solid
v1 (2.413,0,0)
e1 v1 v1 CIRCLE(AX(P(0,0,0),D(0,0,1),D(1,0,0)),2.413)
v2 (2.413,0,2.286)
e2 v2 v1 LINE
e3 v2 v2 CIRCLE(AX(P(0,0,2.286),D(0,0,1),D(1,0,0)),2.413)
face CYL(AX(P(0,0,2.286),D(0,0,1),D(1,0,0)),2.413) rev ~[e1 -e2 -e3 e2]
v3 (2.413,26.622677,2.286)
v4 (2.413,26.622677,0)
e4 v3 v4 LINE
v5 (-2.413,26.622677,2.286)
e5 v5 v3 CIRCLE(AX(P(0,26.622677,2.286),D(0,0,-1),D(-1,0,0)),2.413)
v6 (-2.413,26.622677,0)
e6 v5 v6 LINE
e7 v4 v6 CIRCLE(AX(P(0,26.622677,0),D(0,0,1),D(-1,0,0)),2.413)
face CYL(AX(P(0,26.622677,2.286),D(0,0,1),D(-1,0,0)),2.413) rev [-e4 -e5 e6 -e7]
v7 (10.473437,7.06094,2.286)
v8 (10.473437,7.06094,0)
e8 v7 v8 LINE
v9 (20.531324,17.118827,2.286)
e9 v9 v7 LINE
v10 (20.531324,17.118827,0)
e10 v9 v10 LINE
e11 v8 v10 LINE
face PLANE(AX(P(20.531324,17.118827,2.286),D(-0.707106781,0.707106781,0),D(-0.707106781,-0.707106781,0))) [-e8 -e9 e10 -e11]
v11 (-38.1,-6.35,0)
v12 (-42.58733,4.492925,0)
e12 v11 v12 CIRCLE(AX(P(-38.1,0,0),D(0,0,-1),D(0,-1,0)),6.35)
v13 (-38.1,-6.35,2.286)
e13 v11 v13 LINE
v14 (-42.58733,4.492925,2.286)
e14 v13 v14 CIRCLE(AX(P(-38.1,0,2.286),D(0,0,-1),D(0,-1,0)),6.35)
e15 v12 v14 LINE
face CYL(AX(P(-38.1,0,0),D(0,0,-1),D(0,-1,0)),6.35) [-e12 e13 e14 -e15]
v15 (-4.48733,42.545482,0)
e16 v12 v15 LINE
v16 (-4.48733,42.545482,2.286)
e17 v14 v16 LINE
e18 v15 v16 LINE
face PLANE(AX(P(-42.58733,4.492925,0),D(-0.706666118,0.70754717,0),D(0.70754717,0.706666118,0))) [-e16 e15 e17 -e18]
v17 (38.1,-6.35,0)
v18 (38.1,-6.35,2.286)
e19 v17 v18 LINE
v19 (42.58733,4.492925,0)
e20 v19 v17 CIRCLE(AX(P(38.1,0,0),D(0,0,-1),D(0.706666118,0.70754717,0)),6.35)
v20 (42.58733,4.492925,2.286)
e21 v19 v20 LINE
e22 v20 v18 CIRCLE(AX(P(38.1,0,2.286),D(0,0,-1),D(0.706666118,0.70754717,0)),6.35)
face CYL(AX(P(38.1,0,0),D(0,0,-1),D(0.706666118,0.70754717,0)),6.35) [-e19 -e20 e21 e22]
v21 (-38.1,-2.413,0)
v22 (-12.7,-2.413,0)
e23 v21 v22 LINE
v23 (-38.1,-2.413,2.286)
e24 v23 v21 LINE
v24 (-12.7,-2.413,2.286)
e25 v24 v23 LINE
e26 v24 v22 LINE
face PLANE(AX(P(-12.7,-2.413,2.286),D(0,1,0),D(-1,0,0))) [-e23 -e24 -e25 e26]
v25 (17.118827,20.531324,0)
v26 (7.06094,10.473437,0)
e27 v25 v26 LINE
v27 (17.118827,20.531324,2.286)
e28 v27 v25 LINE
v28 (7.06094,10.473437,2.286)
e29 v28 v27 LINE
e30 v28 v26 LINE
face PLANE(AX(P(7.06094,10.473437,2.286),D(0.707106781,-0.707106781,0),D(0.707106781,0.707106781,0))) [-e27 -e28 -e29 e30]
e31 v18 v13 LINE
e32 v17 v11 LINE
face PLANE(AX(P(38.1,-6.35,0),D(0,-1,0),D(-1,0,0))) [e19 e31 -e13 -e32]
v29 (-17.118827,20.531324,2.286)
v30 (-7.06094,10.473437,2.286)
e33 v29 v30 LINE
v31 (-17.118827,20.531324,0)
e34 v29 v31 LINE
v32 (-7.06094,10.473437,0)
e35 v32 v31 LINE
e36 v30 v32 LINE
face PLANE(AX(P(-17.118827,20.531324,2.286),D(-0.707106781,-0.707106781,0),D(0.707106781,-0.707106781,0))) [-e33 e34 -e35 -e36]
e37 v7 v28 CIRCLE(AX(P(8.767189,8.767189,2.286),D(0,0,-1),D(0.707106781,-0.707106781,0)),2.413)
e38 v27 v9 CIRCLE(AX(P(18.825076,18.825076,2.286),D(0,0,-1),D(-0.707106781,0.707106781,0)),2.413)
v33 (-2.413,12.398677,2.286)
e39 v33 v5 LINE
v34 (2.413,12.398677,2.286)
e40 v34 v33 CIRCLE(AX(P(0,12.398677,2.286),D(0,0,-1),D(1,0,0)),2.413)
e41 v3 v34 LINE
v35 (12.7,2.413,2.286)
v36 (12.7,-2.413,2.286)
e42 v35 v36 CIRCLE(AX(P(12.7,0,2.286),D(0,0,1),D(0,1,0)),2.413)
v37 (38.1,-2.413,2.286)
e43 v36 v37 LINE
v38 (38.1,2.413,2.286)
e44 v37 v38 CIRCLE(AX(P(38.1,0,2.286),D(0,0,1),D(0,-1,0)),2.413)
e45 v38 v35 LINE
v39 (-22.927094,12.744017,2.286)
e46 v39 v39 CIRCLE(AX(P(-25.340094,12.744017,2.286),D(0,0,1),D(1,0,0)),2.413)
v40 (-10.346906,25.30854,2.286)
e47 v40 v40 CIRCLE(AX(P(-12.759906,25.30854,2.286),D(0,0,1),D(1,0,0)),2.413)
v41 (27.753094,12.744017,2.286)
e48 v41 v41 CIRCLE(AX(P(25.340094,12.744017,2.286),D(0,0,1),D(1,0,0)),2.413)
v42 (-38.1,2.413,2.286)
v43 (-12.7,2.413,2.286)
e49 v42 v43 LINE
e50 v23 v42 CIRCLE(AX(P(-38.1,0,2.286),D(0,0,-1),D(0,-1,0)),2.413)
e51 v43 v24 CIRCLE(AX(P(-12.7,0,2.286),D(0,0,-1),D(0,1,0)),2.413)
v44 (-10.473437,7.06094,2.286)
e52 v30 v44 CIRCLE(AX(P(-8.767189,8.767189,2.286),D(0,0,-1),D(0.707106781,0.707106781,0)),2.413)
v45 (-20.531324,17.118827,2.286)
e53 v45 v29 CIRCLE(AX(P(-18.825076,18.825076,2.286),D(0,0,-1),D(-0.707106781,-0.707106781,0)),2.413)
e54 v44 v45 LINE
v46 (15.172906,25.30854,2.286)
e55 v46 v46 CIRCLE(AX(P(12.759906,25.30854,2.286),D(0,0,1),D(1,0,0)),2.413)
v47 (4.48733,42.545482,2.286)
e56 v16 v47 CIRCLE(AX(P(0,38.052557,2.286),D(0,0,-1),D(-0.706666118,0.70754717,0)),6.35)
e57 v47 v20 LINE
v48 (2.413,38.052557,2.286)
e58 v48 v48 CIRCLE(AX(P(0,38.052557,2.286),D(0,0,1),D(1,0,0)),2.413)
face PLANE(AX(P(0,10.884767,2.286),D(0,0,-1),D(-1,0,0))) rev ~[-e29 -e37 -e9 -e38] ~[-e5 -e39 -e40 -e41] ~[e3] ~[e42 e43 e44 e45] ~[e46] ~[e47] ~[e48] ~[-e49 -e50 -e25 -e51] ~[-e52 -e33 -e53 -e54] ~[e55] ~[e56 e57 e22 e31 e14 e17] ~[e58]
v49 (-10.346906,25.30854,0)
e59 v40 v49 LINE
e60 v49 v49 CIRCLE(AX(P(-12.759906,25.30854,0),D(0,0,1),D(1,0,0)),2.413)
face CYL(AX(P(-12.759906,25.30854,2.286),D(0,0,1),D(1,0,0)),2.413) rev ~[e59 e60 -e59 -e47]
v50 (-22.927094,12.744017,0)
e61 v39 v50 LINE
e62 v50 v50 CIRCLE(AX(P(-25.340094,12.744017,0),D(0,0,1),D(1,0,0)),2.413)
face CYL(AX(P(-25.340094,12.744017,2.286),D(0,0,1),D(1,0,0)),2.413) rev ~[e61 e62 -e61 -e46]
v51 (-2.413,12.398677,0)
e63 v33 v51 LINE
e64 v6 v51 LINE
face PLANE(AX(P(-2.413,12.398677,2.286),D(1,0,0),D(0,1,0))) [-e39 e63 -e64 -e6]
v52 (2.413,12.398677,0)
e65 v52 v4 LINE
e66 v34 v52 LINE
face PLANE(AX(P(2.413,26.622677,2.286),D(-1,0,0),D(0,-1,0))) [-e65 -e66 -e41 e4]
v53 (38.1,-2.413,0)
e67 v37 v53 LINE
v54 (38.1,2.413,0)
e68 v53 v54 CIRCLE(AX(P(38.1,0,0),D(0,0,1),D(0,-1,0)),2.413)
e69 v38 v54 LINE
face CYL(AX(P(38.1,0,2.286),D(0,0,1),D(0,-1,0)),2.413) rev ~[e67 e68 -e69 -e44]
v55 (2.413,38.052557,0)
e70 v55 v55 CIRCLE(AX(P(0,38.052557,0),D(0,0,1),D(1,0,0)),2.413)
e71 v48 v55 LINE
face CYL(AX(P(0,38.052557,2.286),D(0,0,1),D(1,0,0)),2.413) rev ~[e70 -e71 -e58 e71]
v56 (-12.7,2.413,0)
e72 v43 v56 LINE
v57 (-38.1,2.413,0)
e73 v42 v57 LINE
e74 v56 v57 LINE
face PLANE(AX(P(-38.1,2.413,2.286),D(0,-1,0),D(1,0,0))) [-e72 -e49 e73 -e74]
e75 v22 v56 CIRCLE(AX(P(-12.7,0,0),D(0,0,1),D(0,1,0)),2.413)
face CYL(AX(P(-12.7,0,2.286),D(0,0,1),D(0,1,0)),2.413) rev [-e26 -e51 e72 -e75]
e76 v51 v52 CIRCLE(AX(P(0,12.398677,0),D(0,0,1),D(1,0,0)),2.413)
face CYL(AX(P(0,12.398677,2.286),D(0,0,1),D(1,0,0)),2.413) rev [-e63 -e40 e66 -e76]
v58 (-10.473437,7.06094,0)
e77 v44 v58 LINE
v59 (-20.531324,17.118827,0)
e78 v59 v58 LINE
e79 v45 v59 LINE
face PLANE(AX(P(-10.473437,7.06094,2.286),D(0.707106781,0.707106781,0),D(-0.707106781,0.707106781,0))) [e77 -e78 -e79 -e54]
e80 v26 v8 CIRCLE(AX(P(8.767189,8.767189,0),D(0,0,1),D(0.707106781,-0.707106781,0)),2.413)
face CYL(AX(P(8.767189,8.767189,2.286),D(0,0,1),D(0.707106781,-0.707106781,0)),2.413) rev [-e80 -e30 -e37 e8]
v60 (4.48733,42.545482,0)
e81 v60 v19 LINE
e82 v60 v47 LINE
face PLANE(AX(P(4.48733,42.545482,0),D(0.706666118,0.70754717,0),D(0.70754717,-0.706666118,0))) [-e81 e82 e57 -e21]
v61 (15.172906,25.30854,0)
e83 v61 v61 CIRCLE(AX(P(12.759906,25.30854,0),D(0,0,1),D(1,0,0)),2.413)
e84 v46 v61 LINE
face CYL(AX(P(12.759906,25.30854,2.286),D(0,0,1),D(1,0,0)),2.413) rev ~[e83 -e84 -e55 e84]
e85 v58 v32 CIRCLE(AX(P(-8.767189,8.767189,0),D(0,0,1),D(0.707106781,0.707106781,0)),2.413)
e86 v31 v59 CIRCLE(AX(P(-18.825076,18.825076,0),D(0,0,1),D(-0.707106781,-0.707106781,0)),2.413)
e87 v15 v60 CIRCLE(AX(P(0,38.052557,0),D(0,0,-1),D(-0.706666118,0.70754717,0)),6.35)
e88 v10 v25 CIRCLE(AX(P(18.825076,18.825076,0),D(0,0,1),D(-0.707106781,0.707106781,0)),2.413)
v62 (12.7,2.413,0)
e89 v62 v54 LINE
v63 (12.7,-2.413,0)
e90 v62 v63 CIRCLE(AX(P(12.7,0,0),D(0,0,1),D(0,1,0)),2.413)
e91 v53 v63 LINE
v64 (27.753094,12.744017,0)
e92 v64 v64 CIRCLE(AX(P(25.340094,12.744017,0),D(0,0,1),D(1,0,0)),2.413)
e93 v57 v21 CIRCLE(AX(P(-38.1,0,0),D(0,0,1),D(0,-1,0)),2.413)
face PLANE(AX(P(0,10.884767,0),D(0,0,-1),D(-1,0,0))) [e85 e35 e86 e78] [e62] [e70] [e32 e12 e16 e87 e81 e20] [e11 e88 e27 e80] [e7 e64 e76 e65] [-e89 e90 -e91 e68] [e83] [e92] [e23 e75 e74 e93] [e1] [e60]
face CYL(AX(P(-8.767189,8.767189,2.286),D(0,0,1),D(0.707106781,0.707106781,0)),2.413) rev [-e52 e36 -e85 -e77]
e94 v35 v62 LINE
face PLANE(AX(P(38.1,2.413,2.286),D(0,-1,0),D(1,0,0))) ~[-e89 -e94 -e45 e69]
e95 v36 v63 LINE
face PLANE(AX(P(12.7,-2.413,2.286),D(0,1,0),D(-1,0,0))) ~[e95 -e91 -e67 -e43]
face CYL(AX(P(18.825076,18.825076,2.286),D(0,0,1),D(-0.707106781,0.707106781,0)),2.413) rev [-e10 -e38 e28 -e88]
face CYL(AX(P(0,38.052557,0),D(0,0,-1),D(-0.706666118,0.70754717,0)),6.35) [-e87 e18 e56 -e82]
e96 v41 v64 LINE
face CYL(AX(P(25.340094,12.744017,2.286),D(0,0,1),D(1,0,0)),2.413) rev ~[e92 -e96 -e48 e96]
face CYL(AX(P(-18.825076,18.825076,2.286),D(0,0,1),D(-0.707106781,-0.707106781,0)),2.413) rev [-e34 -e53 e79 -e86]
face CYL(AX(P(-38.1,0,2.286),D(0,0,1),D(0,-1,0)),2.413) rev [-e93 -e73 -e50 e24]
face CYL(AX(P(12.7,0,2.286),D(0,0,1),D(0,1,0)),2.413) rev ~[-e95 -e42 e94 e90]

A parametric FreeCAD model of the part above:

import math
import FreeCAD as App
import Part
import Sketcher
from FreeCAD import Vector
Q = App.Units.Quantity

doc = App.newDocument("Part")
body = doc.addObject("PartDesign::Body", "Body")

# Sketch on XY plane
sketch1 = body.newObject("Sketcher::SketchObject", "Sketch")
sketch1.AttachmentSupport = (doc.getObject("XY_Plane"), [""])
sketch1.MapMode = "FlatFace"
sketch1.addGeometry([
    Part.LineSegment(Vector(-4.48733, 42.545482, 0), Vector(-42.58733, 4.492925, 0)),  # 0
    Part.ArcOfCircle(Part.Circle(Vector(-38.1, 0, 0), Vector(0, 0, 1), 6.35), math.radians(134.964305), math.radians(270)),  # 1
    Part.LineSegment(Vector(-38.1, -6.35, 0), Vector(38.1, -6.35, 0)),  # 2
    Part.ArcOfCircle(Part.Circle(Vector(38.1, 0, 0), Vector(0, 0, 1), 6.35), math.radians(-90), math.radians(45.035695)),  # 3
    Part.LineSegment(Vector(42.58733, 4.492925, 0), Vector(4.48733, 42.545482, 0)),  # 4
    Part.ArcOfCircle(Part.Circle(Vector(0, 38.052557, 0), Vector(0, 0, 1), 6.35), math.radians(45.035695), math.radians(134.964305)),  # 5
], False)
sketch1.addConstraint([
    Sketcher.Constraint("Tangent", 0, 2, 1, 1),
    Sketcher.Constraint("Tangent", 1, 2, 2, 1),
    Sketcher.Constraint("Tangent", 2, 2, 3, 1),
    Sketcher.Constraint("Tangent", 3, 2, 4, 1),
    Sketcher.Constraint("Tangent", 4, 2, 5, 1),
    Sketcher.Constraint("Tangent", 5, 2, 0, 1),
    Sketcher.Constraint("Horizontal", 2),
    Sketcher.Constraint("Equal", 1, 3),
    Sketcher.Constraint("Equal", 3, 5),
    Sketcher.Constraint("Symmetric", 1, 3, 3, 3, -1, 1),
    Sketcher.Constraint("PointOnObject", 5, 3, -2),
    Sketcher.Constraint("DistanceX", 2, 1, 2, 2, Q("3 in")),
    Sketcher.Constraint("Radius", 1, Q("0.25 in")),
    Sketcher.Constraint("Distance", 0, Q("2.12 in")),
])
pad1 = body.newObject("PartDesign::Pad", "Pad")
pad1.Profile = sketch1
pad1.Length = Q("0.09 in")

# Sketch on XY plane
sketch2 = body.newObject("Sketcher::SketchObject", "Sketch001")
sketch2.AttachmentSupport = (doc.getObject("XY_Plane"), [""])
sketch2.MapMode = "FlatFace"
sketch2.AttachmentOffset = App.Placement(Vector(0, 0, 0.09 * 25.4), App.Rotation())
sketch2.addGeometry([
    Part.Circle(Vector(0, 0, 0), Vector(0, 0, 1), 2.413),  # 0
    Part.Circle(Vector(0, 38.052557, 0), Vector(0, 0, 1), 2.413),  # 1
    Part.Circle(Vector(-25.340094, 12.744017, 0), Vector(0, 0, 1), 2.413),  # 2
    Part.Circle(Vector(25.340094, 12.744017, 0), Vector(0, 0, 1), 2.413),  # 3
    Part.Circle(Vector(-12.759906, 25.30854, 0), Vector(0, 0, 1), 2.413),  # 4
    Part.Circle(Vector(12.759906, 25.30854, 0), Vector(0, 0, 1), 2.413),  # 5
], False)
sketch2.addConstraint([
    Sketcher.Constraint("Coincident", 0, 3, -1, 1),
    Sketcher.Constraint("Equal", 0, 1),
    Sketcher.Constraint("Equal", 1, 2),
    Sketcher.Constraint("Equal", 2, 3),
    Sketcher.Constraint("Equal", 3, 4),
    Sketcher.Constraint("Equal", 4, 5),
    Sketcher.Constraint("Symmetric", 2, 3, 3, 3, -2),
    Sketcher.Constraint("Symmetric", 4, 3, 5, 3, -2),
    Sketcher.Constraint("PointOnObject", 1, 3, -2),
    Sketcher.Constraint("Diameter", 0, Q("0.19 in")),
    Sketcher.Constraint("DistanceX", 4, 3, 3, 3, Q("1.5 in")),
    Sketcher.Constraint("DistanceY", -1, 1, 4, 3, 25.30854),
    Sketcher.Constraint("DistanceY", 2, 3, 1, 3, 25.30854),
    Sketcher.Constraint("DistanceX", 2, 3, 3, 3, 50.680189),
    Sketcher.Constraint("DistanceY", -1, 1, 1, 3, 38.052557),
])
pocket1 = body.newObject("PartDesign::Pocket", "Pocket")
pocket1.Profile = sketch2
pocket1.Type = "ThroughAll"

# Sketch on XY plane
sketch3 = body.newObject("Sketcher::SketchObject", "Sketch002")
sketch3.AttachmentSupport = (doc.getObject("XY_Plane"), [""])
sketch3.MapMode = "FlatFace"
sketch3.AttachmentOffset = App.Placement(Vector(0, 0, 0.09 * 25.4), App.Rotation())
sketch3.addGeometry([
    Part.LineSegment(Vector(-12.7, 2.413, 0), Vector(-38.1, 2.413, 0)),
    Part.ArcOfCircle(Part.Circle(Vector(-38.1, 0, 0), Vector(0, 0, 1), 2.413), math.radians(90), math.radians(270)),
    Part.LineSegment(Vector(-38.1, -2.413, 0), Vector(-12.7, -2.413, 0)),
    Part.ArcOfCircle(Part.Circle(Vector(-12.7, 0, 0), Vector(0, 0, 1), 2.413), math.radians(-90), math.radians(90)),
], False)
sketch3.addConstraint([
    Sketcher.Constraint("Tangent", 0, 2, 1, 1),
    Sketcher.Constraint("Tangent", 1, 2, 2, 1),
    Sketcher.Constraint("Tangent", 2, 2, 3, 1),
    Sketcher.Constraint("Tangent", 3, 2, 0, 1),
    Sketcher.Constraint("Horizontal", 0),
    Sketcher.Constraint("Horizontal", 2),
    Sketcher.Constraint("PointOnObject", 1, 3, -1),
    Sketcher.Constraint("DistanceX", 0, 2, 0, 1, Q("1 in")),
    Sketcher.Constraint("Radius", 1, Q("0.095 in")),
    Sketcher.Constraint("DistanceX", 1, 3, -1, 1, Q("1.5 in")),
])
pocket2 = body.newObject("PartDesign::Pocket", "Pocket001")
pocket2.Profile = sketch3
pocket2.Type = "ThroughAll"
doc.recompute()

mirrored = body.newObject("PartDesign::Mirrored", "Mirrored")
mirrored.Originals = [pocket2]
mirrored.MirrorPlane = (doc.getObject("YZ_Plane"), [""])
body.Tip = mirrored

# Sketch on XY plane
sketch4 = body.newObject("Sketcher::SketchObject", "Sketch003")
sketch4.AttachmentSupport = (doc.getObject("XY_Plane"), [""])
sketch4.MapMode = "FlatFace"
sketch4.AttachmentOffset = App.Placement(Vector(0, 0, 0.09 * 25.4), App.Rotation())
sketch4.addGeometry([
    Part.LineSegment(Vector(-7.06094, 10.473437, 0), Vector(-17.118827, 20.531324, 0)),
    Part.ArcOfCircle(Part.Circle(Vector(-18.825076, 18.825076, 0), Vector(0, 0, 1), 2.413), math.radians(45), math.radians(225)),
    Part.LineSegment(Vector(-20.531324, 17.118827, 0), Vector(-10.473437, 7.06094, 0)),
    Part.ArcOfCircle(Part.Circle(Vector(-8.767189, 8.767189, 0), Vector(0, 0, 1), 2.413), math.radians(-135), math.radians(45)),
], False)
sketch4.addConstraint([
    Sketcher.Constraint("Tangent", 0, 2, 1, 1),
    Sketcher.Constraint("Tangent", 1, 2, 2, 1),
    Sketcher.Constraint("Tangent", 2, 2, 3, 1),
    Sketcher.Constraint("Tangent", 3, 2, 0, 1),
    Sketcher.Constraint("Equal", 1, 3),
    Sketcher.Constraint("Angle", 0, Q("135 deg")),
    Sketcher.Constraint("Radius", 1, Q("0.095 in")),
    Sketcher.Constraint("Distance", 0, Q("0.56 in")),
    Sketcher.Constraint("DistanceX", 3, 3, -1, 1, 8.767189),
    Sketcher.Constraint("DistanceY", -1, 1, 3, 3, 8.767189),
])
pocket3 = body.newObject("PartDesign::Pocket", "Pocket002")
pocket3.Profile = sketch4
pocket3.Type = "ThroughAll"
doc.recompute()

polarpattern = body.newObject("PartDesign::PolarPattern", "PolarPattern")
polarpattern.Originals = [pocket3]
polarpattern.Axis = (doc.getObject("Z_Axis"), [""])
polarpattern.Angle = 90
polarpattern.Occurrences = 3
polarpattern.Reversed = True
body.Tip = polarpattern

doc.recompute()
